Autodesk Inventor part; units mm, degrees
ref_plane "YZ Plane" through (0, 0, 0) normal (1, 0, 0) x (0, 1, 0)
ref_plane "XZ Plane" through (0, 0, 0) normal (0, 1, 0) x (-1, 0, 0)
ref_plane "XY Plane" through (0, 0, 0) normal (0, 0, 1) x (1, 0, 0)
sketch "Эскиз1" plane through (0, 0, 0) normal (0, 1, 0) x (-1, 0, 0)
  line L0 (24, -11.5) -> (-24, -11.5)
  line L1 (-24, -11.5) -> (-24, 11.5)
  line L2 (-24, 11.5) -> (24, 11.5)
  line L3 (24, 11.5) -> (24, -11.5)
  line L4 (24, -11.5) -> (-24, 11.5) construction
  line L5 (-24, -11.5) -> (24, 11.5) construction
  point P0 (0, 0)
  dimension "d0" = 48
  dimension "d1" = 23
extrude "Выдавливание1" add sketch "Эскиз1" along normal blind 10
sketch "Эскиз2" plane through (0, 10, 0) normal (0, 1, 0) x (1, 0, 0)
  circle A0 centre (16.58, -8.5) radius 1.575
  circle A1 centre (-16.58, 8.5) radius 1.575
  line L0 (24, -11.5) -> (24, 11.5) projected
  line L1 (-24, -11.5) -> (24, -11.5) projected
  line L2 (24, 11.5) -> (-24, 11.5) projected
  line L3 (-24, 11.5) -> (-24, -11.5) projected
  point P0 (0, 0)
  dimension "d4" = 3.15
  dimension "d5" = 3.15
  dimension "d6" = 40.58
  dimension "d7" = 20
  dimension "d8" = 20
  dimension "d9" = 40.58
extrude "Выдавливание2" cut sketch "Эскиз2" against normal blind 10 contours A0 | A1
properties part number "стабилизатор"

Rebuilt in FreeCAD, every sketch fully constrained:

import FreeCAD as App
import Part
import Sketcher

V = App.Vector


def add_polygon(sketch, points):
    """Adds a closed chain of lines whose ends are joined by coincident constraints."""
    first, n = sketch.GeometryCount, len(points)
    for a, b in zip(points, points[1:] + points[:1]):
        sketch.addGeometry(Part.LineSegment(App.Vector(*a, 0), App.Vector(*b, 0)), False)
    for i in range(n):
        sketch.addConstraint(Sketcher.Constraint("Coincident", first + i, 2, first + (i + 1) % n, 1))

doc = App.newDocument("Part")
body = doc.addObject("PartDesign::Body", "Body")

# Sketch on XZ plane
sketch1 = doc.addObject("Sketcher::SketchObject", "Sketch")
body.addObject(sketch1)
sketch1.AttachmentSupport = (doc.XZ_Plane, [""])
sketch1.MapMode = "FlatFace"
add_polygon(sketch1, [(24, -11.5), (-24, -11.5), (-24, 11.5), (24, 11.5)])  # lines 0-3
sketch1.addConstraint([
    Sketcher.Constraint("Horizontal", 0),
    Sketcher.Constraint("Vertical", 1),
    Sketcher.Constraint("Horizontal", 2),
    Sketcher.Constraint("Vertical", 3),
    Sketcher.Constraint("Symmetric", 0, 2, 2, 2, -1, 1),
    Sketcher.Constraint("DistanceX", 0, 2, 0, 1, 48.0),
    Sketcher.Constraint("DistanceY", 1, 1, 1, 2, 23.0),
])
pad1 = doc.addObject("PartDesign::Pad", "Pad")
body.addObject(pad1)
pad1.Profile = sketch1
pad1.Length = 10
pad1.Reversed = True

# Sketch on XZ plane
sketch2 = doc.addObject("Sketcher::SketchObject", "Sketch001")
body.addObject(sketch2)
sketch2.AttachmentSupport = (doc.XZ_Plane, [""])
sketch2.MapMode = "FlatFace"
sketch2.AttachmentOffset = App.Placement(V(0, 0, -10), App.Rotation())
sketch2.addGeometry([
    Part.Circle(V(16.58, 8.5, 0), V(0, 0, 1), 1.575),
    Part.Circle(V(-16.58, -8.5, 0), V(0, 0, 1), 1.575),
], False)
sketch2.addConstraint([
    Sketcher.Constraint("Equal", 0, 1),
    Sketcher.Constraint("Symmetric", 0, 3, 1, 3, -1, 1),
    Sketcher.Constraint("Diameter", 0, 3.15),
    Sketcher.Constraint("DistanceY", 1, 3, 0, 3, 17.0),
    Sketcher.Constraint("DistanceX", -1, 1, 0, 3, 16.58),
])
pocket1 = doc.addObject("PartDesign::Pocket", "Pocket")
body.addObject(pocket1)
pocket1.Profile = sketch2
pocket1.Length = 10
pocket1.Reversed = True

doc.recompute()
